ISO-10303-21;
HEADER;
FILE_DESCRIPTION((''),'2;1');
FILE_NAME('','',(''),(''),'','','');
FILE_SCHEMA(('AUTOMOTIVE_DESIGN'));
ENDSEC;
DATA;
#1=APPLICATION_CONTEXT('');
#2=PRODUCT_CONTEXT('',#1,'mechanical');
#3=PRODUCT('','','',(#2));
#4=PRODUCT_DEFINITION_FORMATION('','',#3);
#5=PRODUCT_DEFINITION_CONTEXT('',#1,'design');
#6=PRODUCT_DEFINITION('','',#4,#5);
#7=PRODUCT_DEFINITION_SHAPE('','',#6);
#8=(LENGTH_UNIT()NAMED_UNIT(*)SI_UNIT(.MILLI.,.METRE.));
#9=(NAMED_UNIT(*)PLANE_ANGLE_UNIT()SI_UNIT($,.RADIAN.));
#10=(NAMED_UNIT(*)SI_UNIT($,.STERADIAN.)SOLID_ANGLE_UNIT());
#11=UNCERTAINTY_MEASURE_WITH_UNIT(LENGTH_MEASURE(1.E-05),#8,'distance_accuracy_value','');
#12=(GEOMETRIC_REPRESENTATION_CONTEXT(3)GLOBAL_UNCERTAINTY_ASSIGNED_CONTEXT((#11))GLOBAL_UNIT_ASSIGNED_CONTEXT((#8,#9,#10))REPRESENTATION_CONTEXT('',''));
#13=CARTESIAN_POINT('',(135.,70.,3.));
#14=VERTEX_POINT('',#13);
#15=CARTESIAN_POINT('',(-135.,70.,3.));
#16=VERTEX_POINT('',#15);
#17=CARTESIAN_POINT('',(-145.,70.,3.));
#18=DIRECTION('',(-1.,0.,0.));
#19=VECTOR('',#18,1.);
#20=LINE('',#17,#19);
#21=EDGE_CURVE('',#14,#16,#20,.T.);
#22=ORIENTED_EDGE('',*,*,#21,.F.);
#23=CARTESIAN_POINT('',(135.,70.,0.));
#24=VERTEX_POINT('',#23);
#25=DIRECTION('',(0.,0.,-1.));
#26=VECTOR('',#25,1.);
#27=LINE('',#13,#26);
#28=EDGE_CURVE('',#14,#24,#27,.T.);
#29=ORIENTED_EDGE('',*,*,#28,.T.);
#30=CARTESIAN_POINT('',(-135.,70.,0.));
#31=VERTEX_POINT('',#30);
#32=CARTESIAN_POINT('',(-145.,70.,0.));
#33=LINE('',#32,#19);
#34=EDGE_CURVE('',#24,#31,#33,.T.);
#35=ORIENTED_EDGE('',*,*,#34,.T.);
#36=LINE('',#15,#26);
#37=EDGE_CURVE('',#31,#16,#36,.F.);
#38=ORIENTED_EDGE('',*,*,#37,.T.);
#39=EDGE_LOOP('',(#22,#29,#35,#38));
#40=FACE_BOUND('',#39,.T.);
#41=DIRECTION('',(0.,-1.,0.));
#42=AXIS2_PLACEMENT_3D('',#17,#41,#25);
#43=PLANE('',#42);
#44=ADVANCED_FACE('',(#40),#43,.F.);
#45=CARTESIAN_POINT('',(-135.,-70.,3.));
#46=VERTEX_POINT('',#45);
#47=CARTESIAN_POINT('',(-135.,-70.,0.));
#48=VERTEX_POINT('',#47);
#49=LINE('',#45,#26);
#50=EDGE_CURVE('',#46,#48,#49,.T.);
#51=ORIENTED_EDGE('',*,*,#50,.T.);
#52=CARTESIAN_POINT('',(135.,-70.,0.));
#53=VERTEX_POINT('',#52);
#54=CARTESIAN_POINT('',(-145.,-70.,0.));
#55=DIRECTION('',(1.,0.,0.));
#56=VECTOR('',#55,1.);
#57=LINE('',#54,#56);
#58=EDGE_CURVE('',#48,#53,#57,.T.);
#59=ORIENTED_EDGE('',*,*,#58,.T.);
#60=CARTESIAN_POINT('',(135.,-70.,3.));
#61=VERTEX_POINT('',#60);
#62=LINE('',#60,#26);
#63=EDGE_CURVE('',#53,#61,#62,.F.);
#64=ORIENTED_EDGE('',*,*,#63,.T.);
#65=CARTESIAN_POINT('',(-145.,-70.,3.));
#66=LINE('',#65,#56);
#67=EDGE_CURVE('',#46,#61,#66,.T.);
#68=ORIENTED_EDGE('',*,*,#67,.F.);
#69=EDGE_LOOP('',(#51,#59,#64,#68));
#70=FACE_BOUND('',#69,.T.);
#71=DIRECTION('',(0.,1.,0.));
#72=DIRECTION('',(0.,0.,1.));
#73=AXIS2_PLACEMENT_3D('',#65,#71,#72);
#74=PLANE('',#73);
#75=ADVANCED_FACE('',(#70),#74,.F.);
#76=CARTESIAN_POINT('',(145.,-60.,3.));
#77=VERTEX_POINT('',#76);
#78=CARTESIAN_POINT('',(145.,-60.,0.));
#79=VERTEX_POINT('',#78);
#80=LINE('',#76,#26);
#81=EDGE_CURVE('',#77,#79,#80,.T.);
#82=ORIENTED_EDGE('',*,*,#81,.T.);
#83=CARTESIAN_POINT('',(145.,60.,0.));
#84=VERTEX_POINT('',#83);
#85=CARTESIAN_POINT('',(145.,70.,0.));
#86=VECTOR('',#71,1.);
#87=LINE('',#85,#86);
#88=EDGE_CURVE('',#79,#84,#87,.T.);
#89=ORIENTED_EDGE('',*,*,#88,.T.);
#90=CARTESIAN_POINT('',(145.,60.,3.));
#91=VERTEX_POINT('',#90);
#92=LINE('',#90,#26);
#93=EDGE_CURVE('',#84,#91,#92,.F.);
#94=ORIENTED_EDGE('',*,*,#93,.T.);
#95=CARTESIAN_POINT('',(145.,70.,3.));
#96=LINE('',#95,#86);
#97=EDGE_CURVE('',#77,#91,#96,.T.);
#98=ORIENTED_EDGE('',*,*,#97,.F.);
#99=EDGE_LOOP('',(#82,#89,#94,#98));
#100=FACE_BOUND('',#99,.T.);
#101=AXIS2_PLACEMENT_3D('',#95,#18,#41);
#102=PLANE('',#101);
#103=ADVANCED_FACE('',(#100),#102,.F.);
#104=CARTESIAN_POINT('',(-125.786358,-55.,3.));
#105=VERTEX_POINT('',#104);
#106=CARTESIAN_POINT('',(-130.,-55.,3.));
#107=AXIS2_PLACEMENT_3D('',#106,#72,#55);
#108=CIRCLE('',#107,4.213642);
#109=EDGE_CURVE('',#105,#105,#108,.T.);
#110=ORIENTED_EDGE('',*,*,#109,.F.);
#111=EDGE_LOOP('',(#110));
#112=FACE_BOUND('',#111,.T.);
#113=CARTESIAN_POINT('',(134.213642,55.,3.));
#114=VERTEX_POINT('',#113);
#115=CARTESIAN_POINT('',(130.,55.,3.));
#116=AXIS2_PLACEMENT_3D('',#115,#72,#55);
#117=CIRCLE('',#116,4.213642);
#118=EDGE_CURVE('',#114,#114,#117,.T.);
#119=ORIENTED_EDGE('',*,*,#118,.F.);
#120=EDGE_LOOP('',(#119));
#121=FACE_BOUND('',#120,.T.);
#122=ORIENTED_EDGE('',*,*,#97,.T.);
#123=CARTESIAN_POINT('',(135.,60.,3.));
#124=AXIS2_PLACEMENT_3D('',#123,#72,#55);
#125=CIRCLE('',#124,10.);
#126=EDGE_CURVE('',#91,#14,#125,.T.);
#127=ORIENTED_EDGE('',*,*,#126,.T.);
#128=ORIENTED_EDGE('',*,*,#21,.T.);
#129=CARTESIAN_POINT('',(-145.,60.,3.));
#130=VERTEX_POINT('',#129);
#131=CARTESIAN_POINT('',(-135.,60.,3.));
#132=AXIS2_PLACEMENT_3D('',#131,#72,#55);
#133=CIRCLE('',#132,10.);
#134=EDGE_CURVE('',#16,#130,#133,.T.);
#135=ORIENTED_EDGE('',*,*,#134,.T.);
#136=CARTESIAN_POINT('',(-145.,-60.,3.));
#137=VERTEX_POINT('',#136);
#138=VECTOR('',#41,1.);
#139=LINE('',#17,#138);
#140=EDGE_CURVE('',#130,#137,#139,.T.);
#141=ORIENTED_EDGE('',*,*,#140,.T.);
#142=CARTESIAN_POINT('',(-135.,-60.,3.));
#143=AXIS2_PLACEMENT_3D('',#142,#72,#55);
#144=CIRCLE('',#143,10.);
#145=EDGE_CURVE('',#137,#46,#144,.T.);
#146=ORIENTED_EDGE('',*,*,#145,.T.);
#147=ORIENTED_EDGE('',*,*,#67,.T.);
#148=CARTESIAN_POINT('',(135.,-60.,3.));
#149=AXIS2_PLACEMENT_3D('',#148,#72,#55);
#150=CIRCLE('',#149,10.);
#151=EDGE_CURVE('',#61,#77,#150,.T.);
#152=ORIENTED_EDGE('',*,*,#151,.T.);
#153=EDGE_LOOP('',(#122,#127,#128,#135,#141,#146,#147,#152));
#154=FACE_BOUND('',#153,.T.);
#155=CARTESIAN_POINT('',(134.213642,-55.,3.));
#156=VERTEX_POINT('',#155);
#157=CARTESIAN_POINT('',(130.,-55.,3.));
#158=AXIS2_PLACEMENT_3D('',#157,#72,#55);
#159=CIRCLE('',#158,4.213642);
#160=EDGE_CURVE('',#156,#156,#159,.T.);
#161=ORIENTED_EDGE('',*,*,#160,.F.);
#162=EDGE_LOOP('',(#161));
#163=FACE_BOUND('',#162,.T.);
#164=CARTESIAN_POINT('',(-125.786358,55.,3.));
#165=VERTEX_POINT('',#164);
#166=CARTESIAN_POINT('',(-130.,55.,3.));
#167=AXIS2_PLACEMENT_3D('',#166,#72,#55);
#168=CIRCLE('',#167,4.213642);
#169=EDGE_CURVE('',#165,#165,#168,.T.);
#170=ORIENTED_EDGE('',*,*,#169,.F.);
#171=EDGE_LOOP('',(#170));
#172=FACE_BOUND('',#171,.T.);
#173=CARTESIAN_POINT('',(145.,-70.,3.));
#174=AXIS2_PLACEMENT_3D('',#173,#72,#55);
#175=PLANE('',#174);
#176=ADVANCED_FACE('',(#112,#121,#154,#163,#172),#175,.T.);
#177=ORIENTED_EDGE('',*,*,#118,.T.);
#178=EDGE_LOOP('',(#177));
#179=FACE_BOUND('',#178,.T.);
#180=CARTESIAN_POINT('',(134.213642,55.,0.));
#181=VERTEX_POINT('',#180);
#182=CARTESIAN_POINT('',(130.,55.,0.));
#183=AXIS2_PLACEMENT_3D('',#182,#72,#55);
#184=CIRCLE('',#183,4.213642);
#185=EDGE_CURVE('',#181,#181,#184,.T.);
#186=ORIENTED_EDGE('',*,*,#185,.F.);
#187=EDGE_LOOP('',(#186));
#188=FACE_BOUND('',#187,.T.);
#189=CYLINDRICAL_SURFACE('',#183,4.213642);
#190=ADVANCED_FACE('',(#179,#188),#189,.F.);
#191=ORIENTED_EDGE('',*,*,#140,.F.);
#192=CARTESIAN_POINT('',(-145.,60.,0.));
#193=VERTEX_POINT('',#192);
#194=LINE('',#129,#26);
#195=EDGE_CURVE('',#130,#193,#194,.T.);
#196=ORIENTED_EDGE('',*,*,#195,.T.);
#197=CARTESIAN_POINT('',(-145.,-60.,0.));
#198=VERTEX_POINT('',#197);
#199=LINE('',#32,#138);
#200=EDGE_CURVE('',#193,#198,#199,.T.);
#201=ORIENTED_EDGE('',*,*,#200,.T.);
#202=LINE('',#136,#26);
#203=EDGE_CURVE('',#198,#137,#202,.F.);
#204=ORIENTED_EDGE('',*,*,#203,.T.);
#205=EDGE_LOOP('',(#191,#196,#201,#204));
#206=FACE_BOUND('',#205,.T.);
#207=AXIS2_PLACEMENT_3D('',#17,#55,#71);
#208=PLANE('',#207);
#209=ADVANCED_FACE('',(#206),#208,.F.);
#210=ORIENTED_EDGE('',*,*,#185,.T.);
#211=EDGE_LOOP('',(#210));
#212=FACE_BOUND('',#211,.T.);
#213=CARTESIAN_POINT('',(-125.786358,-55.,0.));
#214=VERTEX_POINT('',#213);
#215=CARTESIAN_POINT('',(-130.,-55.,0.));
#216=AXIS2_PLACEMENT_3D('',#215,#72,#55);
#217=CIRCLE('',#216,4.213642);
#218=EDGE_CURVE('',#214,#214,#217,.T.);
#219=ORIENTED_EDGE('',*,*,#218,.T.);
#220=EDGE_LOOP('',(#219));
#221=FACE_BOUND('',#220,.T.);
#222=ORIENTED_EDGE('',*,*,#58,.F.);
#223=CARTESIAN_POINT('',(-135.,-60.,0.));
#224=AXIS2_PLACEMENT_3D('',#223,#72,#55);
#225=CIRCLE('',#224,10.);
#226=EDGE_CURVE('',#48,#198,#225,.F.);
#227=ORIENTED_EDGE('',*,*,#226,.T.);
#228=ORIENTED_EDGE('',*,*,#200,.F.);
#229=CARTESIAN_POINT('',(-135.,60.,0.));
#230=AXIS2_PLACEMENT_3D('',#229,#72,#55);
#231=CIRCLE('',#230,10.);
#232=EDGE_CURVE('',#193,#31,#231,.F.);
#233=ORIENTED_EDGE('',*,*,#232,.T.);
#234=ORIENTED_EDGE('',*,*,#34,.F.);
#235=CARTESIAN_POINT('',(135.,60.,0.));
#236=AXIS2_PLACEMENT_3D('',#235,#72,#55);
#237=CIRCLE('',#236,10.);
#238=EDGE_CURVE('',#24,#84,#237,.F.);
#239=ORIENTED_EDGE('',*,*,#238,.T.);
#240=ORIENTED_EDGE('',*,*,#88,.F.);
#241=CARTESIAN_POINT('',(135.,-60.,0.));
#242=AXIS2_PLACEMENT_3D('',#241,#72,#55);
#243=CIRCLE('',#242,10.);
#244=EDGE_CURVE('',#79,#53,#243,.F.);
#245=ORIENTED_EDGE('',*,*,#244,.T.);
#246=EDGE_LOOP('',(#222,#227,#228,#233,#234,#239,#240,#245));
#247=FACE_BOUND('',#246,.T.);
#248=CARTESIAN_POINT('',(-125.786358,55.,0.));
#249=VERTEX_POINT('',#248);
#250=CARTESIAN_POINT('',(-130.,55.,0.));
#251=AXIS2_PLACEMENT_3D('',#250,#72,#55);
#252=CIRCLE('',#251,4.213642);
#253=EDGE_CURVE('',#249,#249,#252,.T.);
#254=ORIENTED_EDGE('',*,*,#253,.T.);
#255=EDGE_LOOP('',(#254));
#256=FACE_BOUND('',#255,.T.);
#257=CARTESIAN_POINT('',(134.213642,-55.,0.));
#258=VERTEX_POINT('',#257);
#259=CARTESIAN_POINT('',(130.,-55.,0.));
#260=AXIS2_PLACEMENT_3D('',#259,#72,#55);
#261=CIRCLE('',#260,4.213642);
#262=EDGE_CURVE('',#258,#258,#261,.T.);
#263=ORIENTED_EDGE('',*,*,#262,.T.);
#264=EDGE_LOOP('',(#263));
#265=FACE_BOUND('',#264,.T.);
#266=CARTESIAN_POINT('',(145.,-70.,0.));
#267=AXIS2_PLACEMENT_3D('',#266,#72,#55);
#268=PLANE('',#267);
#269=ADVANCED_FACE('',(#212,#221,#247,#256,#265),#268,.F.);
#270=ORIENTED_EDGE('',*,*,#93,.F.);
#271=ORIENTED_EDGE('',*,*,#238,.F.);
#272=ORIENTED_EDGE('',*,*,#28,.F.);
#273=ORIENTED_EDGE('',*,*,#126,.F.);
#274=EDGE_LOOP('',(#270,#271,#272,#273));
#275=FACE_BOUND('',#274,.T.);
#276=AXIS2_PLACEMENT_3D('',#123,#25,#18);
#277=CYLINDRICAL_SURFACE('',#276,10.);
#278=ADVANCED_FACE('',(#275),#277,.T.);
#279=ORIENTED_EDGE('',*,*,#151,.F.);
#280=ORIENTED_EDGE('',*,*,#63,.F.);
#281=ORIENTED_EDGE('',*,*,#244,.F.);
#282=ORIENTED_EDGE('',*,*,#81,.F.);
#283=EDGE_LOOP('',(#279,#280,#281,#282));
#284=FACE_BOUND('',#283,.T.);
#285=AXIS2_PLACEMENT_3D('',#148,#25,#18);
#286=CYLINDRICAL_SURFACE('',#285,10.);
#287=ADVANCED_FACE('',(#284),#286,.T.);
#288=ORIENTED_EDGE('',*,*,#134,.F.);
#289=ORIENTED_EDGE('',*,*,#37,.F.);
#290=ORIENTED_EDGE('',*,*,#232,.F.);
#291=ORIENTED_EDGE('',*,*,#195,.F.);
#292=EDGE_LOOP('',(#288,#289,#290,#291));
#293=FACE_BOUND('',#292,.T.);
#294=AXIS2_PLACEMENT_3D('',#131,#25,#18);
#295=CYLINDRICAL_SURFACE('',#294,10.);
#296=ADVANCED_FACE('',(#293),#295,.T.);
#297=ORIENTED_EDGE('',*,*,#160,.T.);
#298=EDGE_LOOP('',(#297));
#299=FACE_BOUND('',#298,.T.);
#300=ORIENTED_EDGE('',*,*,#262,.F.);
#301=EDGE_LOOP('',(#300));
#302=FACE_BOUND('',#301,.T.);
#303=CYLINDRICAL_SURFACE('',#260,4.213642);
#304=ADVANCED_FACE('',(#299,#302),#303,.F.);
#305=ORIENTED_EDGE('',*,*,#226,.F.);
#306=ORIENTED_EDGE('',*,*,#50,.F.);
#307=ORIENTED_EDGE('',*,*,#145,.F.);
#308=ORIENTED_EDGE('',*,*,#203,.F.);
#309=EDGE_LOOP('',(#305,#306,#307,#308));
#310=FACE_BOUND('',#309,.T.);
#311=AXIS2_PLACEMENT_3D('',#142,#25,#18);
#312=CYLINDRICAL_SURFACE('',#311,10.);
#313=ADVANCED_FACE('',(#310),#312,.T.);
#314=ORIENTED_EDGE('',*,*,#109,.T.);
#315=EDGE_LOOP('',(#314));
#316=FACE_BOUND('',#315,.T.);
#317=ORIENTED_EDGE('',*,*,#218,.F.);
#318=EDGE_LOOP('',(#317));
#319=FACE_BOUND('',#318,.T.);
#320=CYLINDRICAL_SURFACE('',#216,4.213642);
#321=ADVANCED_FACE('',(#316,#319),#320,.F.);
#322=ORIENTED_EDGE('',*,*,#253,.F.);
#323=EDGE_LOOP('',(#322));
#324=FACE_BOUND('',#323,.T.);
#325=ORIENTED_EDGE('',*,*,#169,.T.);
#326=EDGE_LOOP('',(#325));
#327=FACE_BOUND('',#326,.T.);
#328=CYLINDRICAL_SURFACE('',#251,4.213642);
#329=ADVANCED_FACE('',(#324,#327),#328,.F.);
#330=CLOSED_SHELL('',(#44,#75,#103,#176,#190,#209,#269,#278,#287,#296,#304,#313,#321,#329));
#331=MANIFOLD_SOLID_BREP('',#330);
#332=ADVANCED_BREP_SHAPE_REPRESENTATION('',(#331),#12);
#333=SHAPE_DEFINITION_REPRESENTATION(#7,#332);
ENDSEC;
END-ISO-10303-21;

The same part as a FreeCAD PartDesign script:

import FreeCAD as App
import Part
import Sketcher

V = App.Vector


def edges_at(feature, points):
    """Names of the edges that pass closest to the given points."""
    edges = feature.Shape.Edges
    near = lambda p: min(range(len(edges)), key=lambda i: edges[i].distToShape(Part.Vertex(*p))[0])
    return sorted({f"Edge{near(p) + 1}" for p in points})

doc = App.newDocument("Part")
body = doc.addObject("PartDesign::Body", "Body")

# Sketch on XY plane
sketch1 = body.newObject("Sketcher::SketchObject", "Sketch")
sketch1.AttachmentSupport = (doc.getObject("XY_Plane"), [""])
sketch1.MapMode = "FlatFace"
sketch1.addGeometry(Part.LineSegment(V(-145, 70, 0), V(-145, -70, 0)), False)
sketch1.addGeometry(Part.LineSegment(V(-145, -70, 0), V(145, -70, 0)), False)
sketch1.addGeometry(Part.LineSegment(V(145, -70, 0), V(145, 70, 0)), False)
sketch1.addGeometry(Part.LineSegment(V(145, 70, 0), V(-145, 70, 0)), False)
sketch1.addConstraint(Sketcher.Constraint("Coincident", 0, 2, 1, 1))
sketch1.addConstraint(Sketcher.Constraint("Coincident", 1, 2, 2, 1))
sketch1.addConstraint(Sketcher.Constraint("Coincident", 2, 2, 3, 1))
sketch1.addConstraint(Sketcher.Constraint("Coincident", 3, 2, 0, 1))
sketch1.addConstraint(Sketcher.Constraint("Vertical", 0))
sketch1.addConstraint(Sketcher.Constraint("Horizontal", 1))
sketch1.addConstraint(Sketcher.Constraint("Vertical", 2))
sketch1.addConstraint(Sketcher.Constraint("Horizontal", 3))
sketch1.addConstraint(Sketcher.Constraint("Symmetric", 0, 2, 2, 2, -1, 1))
sketch1.addConstraint(Sketcher.Constraint("DistanceX", 1, 1, 1, 2, 290.0))
sketch1.addConstraint(Sketcher.Constraint("DistanceY", 0, 2, 0, 1, 140.0))
pad1 = body.newObject("PartDesign::Pad", "Pad")
pad1.Profile = sketch1
pad1.Length = 3
doc.recompute()

fillet = body.newObject("PartDesign::Fillet", "Fillet")
fillet.Base = (pad1, edges_at(pad1, [
    (145, -70, 1.5),
    (-145, -70, 1.5),
    (-145, 70, 1.5),
    (145, 70, 1.5),
]))
fillet.Radius = 10

# Sketch on XY plane
sketch2 = body.newObject("Sketcher::SketchObject", "Sketch001")
sketch2.AttachmentSupport = (doc.getObject("XY_Plane"), [""])
sketch2.MapMode = "FlatFace"
sketch2.AttachmentOffset = App.Placement(V(0, 0, 3), App.Rotation())
sketch2.addGeometry(Part.Circle(V(-130, 55, 0), V(0, 0, 1), 4.2), False)
sketch2.addGeometry(Part.Circle(V(-130, -55, 0), V(0, 0, 1), 4.2), False)
sketch2.addGeometry(Part.Circle(V(130, 55, 0), V(0, 0, 1), 4.2), False)
sketch2.addGeometry(Part.Circle(V(130, -55, 0), V(0, 0, 1), 4.2), False)
sketch2.addConstraint(Sketcher.Constraint("Equal", 0, 1))
sketch2.addConstraint(Sketcher.Constraint("Equal", 1, 2))
sketch2.addConstraint(Sketcher.Constraint("Equal", 2, 3))
sketch2.addConstraint(Sketcher.Constraint("Symmetric", 1, 3, 2, 3, -1, 1))
sketch2.addConstraint(Sketcher.Constraint("Symmetric", 0, 3, 3, 3, -1, 1))
sketch2.addConstraint(Sketcher.Constraint("Symmetric", 0, 3, 2, 3, -2))
sketch2.addConstraint(Sketcher.Constraint("DistanceX", 0, 3, -1, 1, 130.0))
sketch2.addConstraint(Sketcher.Constraint("DistanceY", -1, 1, 0, 3, 55.0))
sketch2.addConstraint(Sketcher.Constraint("Diameter", 0, 8.427284))
pocket1 = body.newObject("PartDesign::Pocket", "Pocket")
pocket1.Profile = sketch2
pocket1.Length = 3

doc.recompute()
